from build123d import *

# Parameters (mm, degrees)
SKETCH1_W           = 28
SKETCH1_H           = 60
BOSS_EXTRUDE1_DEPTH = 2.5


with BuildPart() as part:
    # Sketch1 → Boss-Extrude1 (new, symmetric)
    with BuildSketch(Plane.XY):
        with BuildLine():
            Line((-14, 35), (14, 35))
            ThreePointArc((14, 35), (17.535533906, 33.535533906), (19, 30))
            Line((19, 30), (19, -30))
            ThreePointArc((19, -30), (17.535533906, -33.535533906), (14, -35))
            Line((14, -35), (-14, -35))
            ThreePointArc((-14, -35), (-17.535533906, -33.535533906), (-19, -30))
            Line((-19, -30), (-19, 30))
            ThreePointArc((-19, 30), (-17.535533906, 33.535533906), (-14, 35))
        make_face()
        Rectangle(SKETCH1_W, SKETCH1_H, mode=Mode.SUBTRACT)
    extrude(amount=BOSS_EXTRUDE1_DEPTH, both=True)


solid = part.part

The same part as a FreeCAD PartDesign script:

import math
import FreeCAD as App
import Part
import Sketcher
Q = App.Units.Quantity

doc = App.newDocument("Part")
params = doc.addObject("Spreadsheet::Sheet", "Params")
for row, (alias, value) in enumerate([
    ("sketch1_radius", "5 mm"),
    ("sketch1_width", "28 mm"),
    ("sketch1_height", "60 mm"),
    ("pad1_length", "5 mm"),
], start=1):
    params.set(f"A{row}", alias)
    params.set(f"B{row}", "=" + value)
    params.setAlias(f"B{row}", alias)

body = doc.addObject("PartDesign::Body", "Body")

sketch1 = body.newObject("Sketcher::SketchObject", "Sketch")
sketch1.AttachmentSupport = (doc.getObject("XY_Plane"), [""])
sketch1.MapMode = "FlatFace"
sketch1.addGeometry([
    Part.LineSegment(App.Vector(14, 35, 0), App.Vector(-14, 35, 0)),
    Part.ArcOfCircle(Part.Circle(App.Vector(-14, 30, 0), App.Vector(0, 0, 1), 5), math.radians(90), math.radians(180)),
    Part.LineSegment(App.Vector(-19, 30, 0), App.Vector(-19, -30, 0)),
    Part.ArcOfCircle(Part.Circle(App.Vector(-14, -30, 0), App.Vector(0, 0, 1), 5), math.radians(180), math.radians(270)),
    Part.LineSegment(App.Vector(-14, -35, 0), App.Vector(14, -35, 0)),
    Part.ArcOfCircle(Part.Circle(App.Vector(14, -30, 0), App.Vector(0, 0, 1), 5), math.radians(-90), math.radians(0)),
    Part.LineSegment(App.Vector(19, -30, 0), App.Vector(19, 30, 0)),
    Part.ArcOfCircle(Part.Circle(App.Vector(14, 30, 0), App.Vector(0, 0, 1), 5), math.radians(0), math.radians(90)),
    Part.LineSegment(App.Vector(-14, -30, 0), App.Vector(-14, 30, 0)),
    Part.LineSegment(App.Vector(-14, 30, 0), App.Vector(14, 30, 0)),
    Part.LineSegment(App.Vector(14, 30, 0), App.Vector(14, -30, 0)),
    Part.LineSegment(App.Vector(14, -30, 0), App.Vector(-14, -30, 0)),
], False)
sketch1.addConstraint([
    Sketcher.Constraint("Tangent", 0, 2, 1, 1),
    Sketcher.Constraint("Tangent", 1, 2, 2, 1),
    Sketcher.Constraint("Tangent", 2, 2, 3, 1),
    Sketcher.Constraint("Tangent", 3, 2, 4, 1),
    Sketcher.Constraint("Tangent", 4, 2, 5, 1),
    Sketcher.Constraint("Tangent", 5, 2, 6, 1),
    Sketcher.Constraint("Tangent", 6, 2, 7, 1),
    Sketcher.Constraint("Tangent", 7, 2, 0, 1),
    Sketcher.Constraint("Coincident", 8, 2, 9, 1),
    Sketcher.Constraint("Coincident", 9, 2, 10, 1),
    Sketcher.Constraint("Coincident", 10, 2, 11, 1),
    Sketcher.Constraint("Coincident", 11, 2, 8, 1),
    Sketcher.Constraint("Horizontal", 0),
    Sketcher.Constraint("Vertical", 2),
    Sketcher.Constraint("Horizontal", 4),
    Sketcher.Constraint("Vertical", 6),
    Sketcher.Constraint("Vertical", 8),
    Sketcher.Constraint("Horizontal", 9),
    Sketcher.Constraint("Vertical", 10),
    Sketcher.Constraint("Horizontal", 11),
    Sketcher.Constraint("Coincident", 8, 2, 1, 3),
    Sketcher.Constraint("Coincident", 9, 2, 7, 3),
    Sketcher.Constraint("Coincident", 10, 2, 5, 3),
    Sketcher.Constraint("Equal", 1, 3),
    Sketcher.Constraint("Symmetric", 1, 3, 5, 3, -1, 1),
    Sketcher.Constraint("Radius", 1, Q("5 mm")),
    Sketcher.Constraint("DistanceX", 0, 2, 0, 1, Q("28 mm")),
    Sketcher.Constraint("DistanceY", 2, 2, 2, 1, Q("60 mm")),
])
sketch1.setExpression("Constraints[25]", "Params.sketch1_radius")
sketch1.setExpression("Constraints[26]", "Params.sketch1_width")
sketch1.setExpression("Constraints[27]", "Params.sketch1_height")
pad1 = body.newObject("PartDesign::Pad", "Pad")
pad1.Profile = sketch1
pad1.setExpression("Length", "Params.pad1_length")
pad1.Midplane = True

doc.recompute()
